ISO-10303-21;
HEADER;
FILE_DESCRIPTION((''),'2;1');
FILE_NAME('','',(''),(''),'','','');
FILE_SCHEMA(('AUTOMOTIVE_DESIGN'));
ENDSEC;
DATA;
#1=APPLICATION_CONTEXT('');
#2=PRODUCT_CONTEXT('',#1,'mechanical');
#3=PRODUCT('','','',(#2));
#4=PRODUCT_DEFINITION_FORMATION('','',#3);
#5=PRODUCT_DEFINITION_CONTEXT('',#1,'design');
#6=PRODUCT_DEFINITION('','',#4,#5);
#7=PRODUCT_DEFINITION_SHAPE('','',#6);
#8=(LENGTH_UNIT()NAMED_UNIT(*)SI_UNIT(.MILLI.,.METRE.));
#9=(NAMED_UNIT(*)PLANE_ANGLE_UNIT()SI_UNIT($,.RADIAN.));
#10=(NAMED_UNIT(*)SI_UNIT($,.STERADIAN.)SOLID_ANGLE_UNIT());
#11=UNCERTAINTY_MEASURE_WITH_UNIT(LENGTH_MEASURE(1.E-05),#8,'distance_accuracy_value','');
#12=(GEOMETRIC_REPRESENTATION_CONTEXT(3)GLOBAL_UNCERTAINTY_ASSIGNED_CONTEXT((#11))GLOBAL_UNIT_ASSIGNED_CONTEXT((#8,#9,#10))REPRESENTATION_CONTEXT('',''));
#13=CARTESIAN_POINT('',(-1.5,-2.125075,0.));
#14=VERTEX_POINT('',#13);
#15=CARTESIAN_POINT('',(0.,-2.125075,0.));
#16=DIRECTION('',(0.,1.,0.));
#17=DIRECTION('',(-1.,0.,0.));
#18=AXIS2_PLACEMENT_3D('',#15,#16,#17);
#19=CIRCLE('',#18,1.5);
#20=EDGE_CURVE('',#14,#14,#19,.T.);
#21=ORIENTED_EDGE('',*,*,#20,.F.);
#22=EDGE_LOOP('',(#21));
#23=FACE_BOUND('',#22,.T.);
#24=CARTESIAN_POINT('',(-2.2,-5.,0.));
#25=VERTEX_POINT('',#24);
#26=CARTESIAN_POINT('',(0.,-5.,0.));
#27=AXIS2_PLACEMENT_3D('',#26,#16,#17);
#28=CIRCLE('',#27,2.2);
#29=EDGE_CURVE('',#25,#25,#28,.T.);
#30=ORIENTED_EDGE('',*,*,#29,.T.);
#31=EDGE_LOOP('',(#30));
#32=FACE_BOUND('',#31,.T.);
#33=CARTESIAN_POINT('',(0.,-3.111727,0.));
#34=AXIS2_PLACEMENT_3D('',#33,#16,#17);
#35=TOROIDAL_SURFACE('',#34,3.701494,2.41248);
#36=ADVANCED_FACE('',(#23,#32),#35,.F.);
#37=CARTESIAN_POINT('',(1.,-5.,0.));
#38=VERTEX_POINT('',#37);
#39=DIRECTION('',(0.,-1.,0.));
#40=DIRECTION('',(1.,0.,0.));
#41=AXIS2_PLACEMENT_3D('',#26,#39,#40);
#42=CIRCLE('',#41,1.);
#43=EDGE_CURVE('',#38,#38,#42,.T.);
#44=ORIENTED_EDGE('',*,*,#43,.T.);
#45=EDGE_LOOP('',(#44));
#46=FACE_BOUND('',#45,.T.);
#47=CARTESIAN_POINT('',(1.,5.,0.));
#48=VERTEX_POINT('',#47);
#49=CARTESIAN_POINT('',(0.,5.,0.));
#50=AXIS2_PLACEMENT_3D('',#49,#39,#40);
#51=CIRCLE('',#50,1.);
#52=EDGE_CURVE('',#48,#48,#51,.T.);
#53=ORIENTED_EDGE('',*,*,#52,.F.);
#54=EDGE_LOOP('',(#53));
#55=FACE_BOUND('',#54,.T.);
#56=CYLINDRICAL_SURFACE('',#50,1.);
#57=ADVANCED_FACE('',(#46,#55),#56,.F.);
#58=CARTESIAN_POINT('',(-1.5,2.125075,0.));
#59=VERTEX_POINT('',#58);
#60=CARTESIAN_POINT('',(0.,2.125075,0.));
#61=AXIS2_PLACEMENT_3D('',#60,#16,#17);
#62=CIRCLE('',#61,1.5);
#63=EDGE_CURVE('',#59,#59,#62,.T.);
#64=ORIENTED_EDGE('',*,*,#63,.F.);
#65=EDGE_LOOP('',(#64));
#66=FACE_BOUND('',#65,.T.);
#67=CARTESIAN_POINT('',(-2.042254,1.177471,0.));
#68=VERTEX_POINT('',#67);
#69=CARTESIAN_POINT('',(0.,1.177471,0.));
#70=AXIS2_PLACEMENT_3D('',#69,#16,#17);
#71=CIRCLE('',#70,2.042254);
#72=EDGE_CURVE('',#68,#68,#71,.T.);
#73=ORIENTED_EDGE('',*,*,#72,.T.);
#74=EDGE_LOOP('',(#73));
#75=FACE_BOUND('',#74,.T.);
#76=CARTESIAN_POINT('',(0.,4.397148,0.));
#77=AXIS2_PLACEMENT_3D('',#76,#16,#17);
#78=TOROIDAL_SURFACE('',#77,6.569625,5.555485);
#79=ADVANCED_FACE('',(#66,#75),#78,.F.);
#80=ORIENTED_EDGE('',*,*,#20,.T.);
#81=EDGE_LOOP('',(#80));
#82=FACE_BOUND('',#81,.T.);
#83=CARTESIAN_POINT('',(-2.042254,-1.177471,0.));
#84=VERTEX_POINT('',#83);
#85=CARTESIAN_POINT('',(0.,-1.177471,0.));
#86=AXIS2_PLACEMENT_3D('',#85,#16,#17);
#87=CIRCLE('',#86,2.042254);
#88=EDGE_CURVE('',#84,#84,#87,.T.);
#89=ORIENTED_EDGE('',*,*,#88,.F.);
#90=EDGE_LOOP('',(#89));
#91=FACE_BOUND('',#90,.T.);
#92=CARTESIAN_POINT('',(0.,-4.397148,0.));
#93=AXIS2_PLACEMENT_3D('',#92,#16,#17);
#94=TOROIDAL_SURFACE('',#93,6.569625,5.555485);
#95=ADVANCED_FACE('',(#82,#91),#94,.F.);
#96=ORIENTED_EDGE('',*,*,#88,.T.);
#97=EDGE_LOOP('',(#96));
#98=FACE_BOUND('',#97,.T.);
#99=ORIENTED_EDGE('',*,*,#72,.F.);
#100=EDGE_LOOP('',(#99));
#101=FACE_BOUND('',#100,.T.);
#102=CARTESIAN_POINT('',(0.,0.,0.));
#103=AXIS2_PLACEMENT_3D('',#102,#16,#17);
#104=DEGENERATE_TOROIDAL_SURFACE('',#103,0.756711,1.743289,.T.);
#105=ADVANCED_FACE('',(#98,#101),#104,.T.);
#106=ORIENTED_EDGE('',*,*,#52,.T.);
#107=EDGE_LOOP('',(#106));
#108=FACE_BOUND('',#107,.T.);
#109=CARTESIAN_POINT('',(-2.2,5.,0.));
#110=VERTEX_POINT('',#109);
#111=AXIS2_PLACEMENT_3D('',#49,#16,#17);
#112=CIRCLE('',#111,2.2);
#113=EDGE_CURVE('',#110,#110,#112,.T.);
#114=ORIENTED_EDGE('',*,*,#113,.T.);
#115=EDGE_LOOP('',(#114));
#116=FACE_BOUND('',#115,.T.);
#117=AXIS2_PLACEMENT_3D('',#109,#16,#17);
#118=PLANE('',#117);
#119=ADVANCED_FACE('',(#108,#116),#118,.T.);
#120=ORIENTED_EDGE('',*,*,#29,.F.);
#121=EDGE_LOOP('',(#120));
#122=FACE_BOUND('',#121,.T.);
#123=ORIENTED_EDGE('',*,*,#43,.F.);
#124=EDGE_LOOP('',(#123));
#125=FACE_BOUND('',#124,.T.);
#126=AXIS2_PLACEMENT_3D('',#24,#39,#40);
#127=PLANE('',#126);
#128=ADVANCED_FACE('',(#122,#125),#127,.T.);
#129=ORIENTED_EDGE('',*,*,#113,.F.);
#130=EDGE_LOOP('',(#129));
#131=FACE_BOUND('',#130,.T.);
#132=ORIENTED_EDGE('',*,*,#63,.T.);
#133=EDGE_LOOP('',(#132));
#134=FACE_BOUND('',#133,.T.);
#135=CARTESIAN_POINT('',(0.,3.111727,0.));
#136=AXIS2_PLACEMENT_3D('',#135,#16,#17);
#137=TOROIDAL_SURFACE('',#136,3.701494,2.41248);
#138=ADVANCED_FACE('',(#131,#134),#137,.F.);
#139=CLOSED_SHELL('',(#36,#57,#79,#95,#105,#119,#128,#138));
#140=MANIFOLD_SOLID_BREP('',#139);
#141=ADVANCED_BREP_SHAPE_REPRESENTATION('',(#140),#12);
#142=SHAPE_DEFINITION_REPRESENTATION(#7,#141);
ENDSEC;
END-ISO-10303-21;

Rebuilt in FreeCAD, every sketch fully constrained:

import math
import FreeCAD as App
import Part
import Sketcher

V = App.Vector
Q = App.Units.Quantity

doc = App.newDocument("Part")
body = doc.addObject("PartDesign::Body", "Body")

sketch1 = doc.addObject("Sketcher::SketchObject", "Sketch")
body.addObject(sketch1)
sketch1.AttachmentSupport = (doc.XY_Plane, [""])
sketch1.MapMode = "FlatFace"
sketch1.addGeometry(Part.LineSegment(V(0, -5, 0), V(0, 5, 0)), False)
sketch1.addGeometry(Part.LineSegment(V(0, 5, 0), V(-2.2, 5, 0)), False)
sketch1.addGeometry(Part.ArcOfCircle(Part.Circle(V(-3.701494, 3.111727, 0), V(0, 0, 1), 2.41248), math.radians(-24.140676), math.radians(51.5094)), False)
sketch1.addGeometry(Part.ArcOfCircle(Part.Circle(V(-6.569625, 4.397148, 0), V(0, 0, 1), 5.555486), math.radians(-35.418847), math.radians(-24.140676)), False)
sketch1.addGeometry(Part.ArcOfCircle(Part.Circle(V(-0.756711, 0, 0), V(0, 0, 1), 1.743289), math.radians(137.512414), math.radians(222.487586)), False)
sketch1.addGeometry(Part.ArcOfCircle(Part.Circle(V(-6.569625, -4.397148, 0), V(0, 0, 1), 5.555486), math.radians(24.140676), math.radians(35.418847)), False)
sketch1.addGeometry(Part.ArcOfCircle(Part.Circle(V(-3.701494, -3.111727, 0), V(0, 0, 1), 2.41248), math.radians(-51.5094), math.radians(24.140676)), False)
sketch1.addGeometry(Part.LineSegment(V(-2.2, -5, 0), V(0, -5, 0)), False)
sketch1.addConstraint(Sketcher.Constraint("Coincident", 0, 2, 1, 1))
sketch1.addConstraint(Sketcher.Constraint("Coincident", 1, 2, 2, 2))
sketch1.addConstraint(Sketcher.Constraint("Tangent", 2, 1, 3, 2))
sketch1.addConstraint(Sketcher.Constraint("Coincident", 3, 1, 4, 1))
sketch1.addConstraint(Sketcher.Constraint("Coincident", 4, 2, 5, 2))
sketch1.addConstraint(Sketcher.Constraint("Tangent", 5, 1, 6, 2))
sketch1.addConstraint(Sketcher.Constraint("Coincident", 6, 1, 7, 1))
sketch1.addConstraint(Sketcher.Constraint("Coincident", 7, 2, 0, 1))
sketch1.addConstraint(Sketcher.Constraint("Vertical", 0))
sketch1.addConstraint(Sketcher.Constraint("Horizontal", 1))
sketch1.addConstraint(Sketcher.Constraint("Horizontal", 7))
sketch1.addConstraint(Sketcher.Constraint("Equal", 3, 5))
sketch1.addConstraint(Sketcher.Constraint("Equal", 2, 6))
sketch1.addConstraint(Sketcher.Constraint("Symmetric", 0, 2, 7, 2, -1, 1))
sketch1.addConstraint(Sketcher.Constraint("Symmetric", 3, 3, 5, 3, -1))
sketch1.addConstraint(Sketcher.Constraint("PointOnObject", 4, 3, -1))
sketch1.addConstraint(Sketcher.Constraint("Vertical", 2, 3, 6, 3))
sketch1.addConstraint(Sketcher.Constraint("DistanceY", 0, 1, 0, 2, Q("10 mm")))
sketch1.addConstraint(Sketcher.Constraint("DistanceX", 1, 2, 1, 1, Q("2.2 mm")))
sketch1.addConstraint(Sketcher.Constraint("DistanceX", 2, 1, -1, 1, Q("1.5 mm")))
sketch1.addConstraint(Sketcher.Constraint("Radius", 2, Q("2.41248 mm")))
sketch1.addConstraint(Sketcher.Constraint("Radius", 4, Q("1.743289 mm")))
sketch1.addConstraint(Sketcher.Constraint("Radius", 3, Q("5.555486 mm")))
sketch1.addConstraint(Sketcher.Constraint("DistanceY", -1, 1, 3, 3, Q("4.397148 mm")))
sketch1.addConstraint(Sketcher.Constraint("DistanceX", 4, 3, -1, 1, Q("0.756711 mm")))
revolution = doc.addObject("PartDesign::Revolution", "Revolution")
body.addObject(revolution)
revolution.Profile = sketch1
revolution.ReferenceAxis = (sketch1, ["V_Axis"])
revolution.Angle = 360

sketch2 = doc.addObject("Sketcher::SketchObject", "Sketch001")
body.addObject(sketch2)
sketch2.AttachmentSupport = (doc.XZ_Plane, [""])
sketch2.MapMode = "FlatFace"
sketch2.AttachmentOffset = App.Placement(V(0, 0, 5), App.Rotation())
sketch2.addGeometry(Part.Circle(V(0, 0, 0), V(0, 0, 1), 1), False)
sketch2.addConstraint(Sketcher.Constraint("Coincident", 0, 3, -1, 1))
sketch2.addConstraint(Sketcher.Constraint("Diameter", 0, Q("2 mm")))
pocket1 = doc.addObject("PartDesign::Pocket", "Pocket")
body.addObject(pocket1)
pocket1.Profile = sketch2
pocket1.Length = 10

doc.recompute()
